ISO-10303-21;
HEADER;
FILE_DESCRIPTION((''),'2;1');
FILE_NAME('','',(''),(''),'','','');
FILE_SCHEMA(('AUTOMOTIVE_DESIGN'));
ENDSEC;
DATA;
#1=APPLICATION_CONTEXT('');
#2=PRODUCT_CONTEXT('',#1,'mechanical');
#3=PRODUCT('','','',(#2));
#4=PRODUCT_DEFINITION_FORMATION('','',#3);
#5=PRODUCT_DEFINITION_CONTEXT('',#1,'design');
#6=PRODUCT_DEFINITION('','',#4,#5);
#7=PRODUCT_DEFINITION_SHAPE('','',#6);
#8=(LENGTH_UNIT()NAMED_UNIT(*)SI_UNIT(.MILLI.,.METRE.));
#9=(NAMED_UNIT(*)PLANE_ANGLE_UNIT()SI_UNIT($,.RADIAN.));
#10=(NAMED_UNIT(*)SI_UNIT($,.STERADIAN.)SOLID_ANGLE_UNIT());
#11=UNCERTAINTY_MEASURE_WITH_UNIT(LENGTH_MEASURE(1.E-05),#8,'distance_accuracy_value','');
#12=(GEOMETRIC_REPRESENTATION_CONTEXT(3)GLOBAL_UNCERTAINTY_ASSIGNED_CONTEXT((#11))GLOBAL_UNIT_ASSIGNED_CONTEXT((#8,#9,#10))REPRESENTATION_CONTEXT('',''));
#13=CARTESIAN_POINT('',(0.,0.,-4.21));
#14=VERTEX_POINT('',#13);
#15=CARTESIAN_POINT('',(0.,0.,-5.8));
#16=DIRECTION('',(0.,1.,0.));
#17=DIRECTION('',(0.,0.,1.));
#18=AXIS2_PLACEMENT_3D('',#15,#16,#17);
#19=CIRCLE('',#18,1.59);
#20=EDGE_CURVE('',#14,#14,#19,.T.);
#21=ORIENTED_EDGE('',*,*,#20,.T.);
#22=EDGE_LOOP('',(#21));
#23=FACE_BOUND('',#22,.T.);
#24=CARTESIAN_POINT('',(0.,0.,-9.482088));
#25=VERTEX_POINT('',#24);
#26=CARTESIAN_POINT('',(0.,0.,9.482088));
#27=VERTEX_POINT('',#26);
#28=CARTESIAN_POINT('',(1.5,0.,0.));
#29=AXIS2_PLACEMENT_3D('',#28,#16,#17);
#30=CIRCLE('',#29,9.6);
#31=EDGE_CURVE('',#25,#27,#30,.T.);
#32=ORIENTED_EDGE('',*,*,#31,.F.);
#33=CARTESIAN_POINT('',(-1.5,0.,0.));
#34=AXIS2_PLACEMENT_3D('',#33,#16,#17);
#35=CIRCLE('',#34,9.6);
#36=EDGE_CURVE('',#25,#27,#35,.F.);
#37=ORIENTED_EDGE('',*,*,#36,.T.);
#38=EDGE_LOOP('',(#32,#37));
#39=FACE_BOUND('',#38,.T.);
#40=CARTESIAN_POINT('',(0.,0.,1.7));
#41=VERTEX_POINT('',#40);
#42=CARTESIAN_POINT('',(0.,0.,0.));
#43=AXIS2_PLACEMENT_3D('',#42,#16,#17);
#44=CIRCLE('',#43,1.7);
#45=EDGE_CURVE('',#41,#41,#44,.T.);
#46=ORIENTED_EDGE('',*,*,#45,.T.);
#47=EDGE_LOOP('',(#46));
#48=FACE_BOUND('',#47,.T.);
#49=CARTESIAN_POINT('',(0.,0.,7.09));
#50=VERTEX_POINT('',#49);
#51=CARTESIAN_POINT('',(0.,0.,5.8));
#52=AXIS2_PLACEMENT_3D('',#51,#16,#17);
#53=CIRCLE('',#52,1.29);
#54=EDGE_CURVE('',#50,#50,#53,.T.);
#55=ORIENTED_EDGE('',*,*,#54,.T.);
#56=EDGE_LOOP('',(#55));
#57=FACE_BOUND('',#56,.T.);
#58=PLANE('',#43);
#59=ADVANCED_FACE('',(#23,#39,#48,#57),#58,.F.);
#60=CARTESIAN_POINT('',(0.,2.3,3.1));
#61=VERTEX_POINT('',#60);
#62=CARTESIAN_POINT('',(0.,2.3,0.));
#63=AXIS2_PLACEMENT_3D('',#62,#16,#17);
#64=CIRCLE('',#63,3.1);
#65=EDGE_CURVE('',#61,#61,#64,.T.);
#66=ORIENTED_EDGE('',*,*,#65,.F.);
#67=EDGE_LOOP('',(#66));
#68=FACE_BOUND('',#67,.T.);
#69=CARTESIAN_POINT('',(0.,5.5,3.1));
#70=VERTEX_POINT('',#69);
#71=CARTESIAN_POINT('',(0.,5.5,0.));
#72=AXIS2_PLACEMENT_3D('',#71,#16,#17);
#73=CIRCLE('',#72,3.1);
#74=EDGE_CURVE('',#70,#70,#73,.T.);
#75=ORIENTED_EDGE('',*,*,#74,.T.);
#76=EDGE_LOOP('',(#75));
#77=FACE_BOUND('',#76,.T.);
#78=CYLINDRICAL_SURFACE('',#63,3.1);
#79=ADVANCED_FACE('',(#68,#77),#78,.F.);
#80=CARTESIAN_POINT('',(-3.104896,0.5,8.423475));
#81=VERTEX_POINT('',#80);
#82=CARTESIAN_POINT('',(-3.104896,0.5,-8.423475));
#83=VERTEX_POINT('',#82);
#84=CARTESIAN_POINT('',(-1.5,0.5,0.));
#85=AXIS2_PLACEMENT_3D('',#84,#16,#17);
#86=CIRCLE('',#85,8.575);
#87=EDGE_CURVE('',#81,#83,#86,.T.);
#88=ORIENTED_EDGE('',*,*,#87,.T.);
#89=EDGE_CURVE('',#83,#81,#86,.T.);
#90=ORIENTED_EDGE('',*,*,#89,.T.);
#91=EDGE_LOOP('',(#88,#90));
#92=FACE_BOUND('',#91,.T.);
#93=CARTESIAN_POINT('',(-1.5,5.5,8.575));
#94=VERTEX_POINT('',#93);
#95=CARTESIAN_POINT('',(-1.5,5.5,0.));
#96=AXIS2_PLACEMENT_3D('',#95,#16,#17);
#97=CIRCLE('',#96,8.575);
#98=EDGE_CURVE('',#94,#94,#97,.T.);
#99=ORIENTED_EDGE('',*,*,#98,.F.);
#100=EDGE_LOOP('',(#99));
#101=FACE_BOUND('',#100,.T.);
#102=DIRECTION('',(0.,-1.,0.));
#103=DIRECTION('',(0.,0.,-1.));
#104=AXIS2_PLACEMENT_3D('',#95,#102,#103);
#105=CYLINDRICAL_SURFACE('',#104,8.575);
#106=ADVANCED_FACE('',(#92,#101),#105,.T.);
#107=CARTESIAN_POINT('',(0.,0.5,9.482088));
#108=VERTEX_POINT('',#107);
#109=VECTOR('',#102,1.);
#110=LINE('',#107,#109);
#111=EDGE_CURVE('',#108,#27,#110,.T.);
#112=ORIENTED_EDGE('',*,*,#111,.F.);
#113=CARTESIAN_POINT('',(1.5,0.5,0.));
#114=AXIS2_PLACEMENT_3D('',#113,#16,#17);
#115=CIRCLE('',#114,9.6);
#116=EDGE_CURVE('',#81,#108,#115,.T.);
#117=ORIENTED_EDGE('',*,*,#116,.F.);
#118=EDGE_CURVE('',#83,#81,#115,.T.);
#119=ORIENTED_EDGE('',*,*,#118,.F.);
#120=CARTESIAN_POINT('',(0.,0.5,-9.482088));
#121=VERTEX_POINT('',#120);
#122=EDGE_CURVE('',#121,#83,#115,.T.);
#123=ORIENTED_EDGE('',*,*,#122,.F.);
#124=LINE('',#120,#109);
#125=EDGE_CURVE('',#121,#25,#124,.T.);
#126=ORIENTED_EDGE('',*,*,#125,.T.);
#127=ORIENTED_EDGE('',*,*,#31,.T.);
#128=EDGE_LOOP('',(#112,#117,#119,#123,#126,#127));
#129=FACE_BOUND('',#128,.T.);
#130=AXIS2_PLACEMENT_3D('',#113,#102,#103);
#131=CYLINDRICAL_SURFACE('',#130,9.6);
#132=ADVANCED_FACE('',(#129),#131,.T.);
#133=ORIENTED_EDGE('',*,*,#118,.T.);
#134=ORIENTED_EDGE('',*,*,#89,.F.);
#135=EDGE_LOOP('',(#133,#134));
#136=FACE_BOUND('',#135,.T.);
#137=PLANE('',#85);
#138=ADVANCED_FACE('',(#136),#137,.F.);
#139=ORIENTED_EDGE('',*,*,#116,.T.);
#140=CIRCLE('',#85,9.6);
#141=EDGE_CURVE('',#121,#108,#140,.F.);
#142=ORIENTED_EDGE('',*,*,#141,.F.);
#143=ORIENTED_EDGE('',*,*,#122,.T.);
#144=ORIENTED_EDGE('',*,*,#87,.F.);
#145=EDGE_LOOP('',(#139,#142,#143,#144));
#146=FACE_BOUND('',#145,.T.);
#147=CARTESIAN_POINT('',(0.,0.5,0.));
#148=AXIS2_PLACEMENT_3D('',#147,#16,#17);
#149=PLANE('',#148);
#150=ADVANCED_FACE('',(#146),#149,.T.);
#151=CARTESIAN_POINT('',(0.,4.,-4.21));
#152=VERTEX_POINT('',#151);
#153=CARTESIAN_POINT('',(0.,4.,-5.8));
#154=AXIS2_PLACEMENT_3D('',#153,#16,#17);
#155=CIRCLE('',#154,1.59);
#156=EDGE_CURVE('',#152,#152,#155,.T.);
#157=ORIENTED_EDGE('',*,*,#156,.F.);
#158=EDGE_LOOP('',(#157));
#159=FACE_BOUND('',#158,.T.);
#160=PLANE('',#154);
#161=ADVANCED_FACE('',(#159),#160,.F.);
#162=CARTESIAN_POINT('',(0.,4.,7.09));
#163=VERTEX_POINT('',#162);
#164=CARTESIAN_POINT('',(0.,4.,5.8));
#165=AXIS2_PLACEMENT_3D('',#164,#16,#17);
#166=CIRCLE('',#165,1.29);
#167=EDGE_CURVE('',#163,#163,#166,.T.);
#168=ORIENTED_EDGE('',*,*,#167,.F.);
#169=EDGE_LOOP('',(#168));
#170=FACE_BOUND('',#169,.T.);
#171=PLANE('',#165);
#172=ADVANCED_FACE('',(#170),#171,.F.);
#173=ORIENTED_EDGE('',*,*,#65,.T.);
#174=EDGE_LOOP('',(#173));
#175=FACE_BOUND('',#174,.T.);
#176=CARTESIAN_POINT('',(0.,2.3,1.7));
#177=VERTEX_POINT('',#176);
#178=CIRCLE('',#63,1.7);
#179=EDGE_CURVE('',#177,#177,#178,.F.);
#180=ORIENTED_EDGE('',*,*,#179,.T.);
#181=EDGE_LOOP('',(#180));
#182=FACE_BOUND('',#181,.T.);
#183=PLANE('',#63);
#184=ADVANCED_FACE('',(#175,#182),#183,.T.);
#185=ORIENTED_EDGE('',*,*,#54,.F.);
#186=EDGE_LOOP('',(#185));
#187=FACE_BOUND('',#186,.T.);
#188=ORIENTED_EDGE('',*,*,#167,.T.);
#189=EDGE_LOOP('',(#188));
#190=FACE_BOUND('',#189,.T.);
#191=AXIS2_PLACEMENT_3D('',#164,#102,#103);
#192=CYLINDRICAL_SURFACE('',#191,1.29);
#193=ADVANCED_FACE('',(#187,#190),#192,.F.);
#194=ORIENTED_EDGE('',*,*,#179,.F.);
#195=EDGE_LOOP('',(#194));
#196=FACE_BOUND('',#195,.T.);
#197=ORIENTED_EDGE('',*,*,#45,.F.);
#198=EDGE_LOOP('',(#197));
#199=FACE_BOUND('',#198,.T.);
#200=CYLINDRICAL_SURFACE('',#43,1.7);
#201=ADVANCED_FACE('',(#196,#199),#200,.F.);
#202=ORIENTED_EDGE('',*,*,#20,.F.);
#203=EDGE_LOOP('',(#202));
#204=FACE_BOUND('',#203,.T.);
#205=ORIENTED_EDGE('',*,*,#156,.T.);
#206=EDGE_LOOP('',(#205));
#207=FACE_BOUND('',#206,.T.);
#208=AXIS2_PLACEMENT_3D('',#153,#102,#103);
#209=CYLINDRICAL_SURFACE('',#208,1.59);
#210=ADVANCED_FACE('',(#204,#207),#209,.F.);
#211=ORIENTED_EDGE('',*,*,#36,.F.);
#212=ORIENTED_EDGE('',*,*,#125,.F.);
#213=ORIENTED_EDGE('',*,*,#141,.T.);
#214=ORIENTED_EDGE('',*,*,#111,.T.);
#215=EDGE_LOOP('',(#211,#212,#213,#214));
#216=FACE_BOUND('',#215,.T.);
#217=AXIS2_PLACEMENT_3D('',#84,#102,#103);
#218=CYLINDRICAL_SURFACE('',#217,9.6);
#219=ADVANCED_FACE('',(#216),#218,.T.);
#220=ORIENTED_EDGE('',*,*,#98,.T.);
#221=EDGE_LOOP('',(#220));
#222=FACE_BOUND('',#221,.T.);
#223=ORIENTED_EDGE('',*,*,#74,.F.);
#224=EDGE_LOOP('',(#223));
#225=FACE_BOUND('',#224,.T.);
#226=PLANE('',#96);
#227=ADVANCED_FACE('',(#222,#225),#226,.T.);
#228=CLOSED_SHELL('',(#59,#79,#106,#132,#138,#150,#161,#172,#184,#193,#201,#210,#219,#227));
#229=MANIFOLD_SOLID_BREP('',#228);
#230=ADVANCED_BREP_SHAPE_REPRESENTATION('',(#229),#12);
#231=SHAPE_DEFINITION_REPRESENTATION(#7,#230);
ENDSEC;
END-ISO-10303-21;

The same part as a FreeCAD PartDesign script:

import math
import FreeCAD as App
import Part
import Sketcher

V = App.Vector
Q = App.Units.Quantity

doc = App.newDocument("Part")
body = doc.addObject("PartDesign::Body", "Body")

# Sketch on XZ plane
sketch1 = doc.addObject("Sketcher::SketchObject", "Sketch")
body.addObject(sketch1)
sketch1.AttachmentSupport = (doc.XZ_Plane, [""])
sketch1.MapMode = "FlatFace"
sketch1.addGeometry(Part.ArcOfCircle(Part.Circle(V(-2, 0, 0), V(0, 0, 1), 10), math.radians(-81), math.radians(0)), False)
sketch1.addGeometry(Part.ArcOfCircle(Part.Circle(V(2, 0, 0), V(0, 0, 1), 10), math.radians(99), math.radians(261)), False)
sketch1.addGeometry(Part.ArcOfCircle(Part.Circle(V(-2, 0, 0), V(0, 0, 1), 10), math.radians(0), math.radians(81)), False)
sketch1.addConstraint(Sketcher.Constraint("Coincident", 0, 1, 1, 2))
sketch1.addConstraint(Sketcher.Constraint("Coincident", 1, 1, 2, 2))
sketch1.addConstraint(Sketcher.Constraint("Tangent", 2, 1, 0, 2))
sketch1.addConstraint(Sketcher.Constraint("Equal", 0, 1))
sketch1.addConstraint(Sketcher.Constraint("Equal", 1, 2))
sketch1.addConstraint(Sketcher.Constraint("Symmetric", 0, 3, 1, 3, -1, 1))
sketch1.addConstraint(Sketcher.Constraint("PointOnObject", 0, 3, -1))
sketch1.addConstraint(Sketcher.Constraint("PointOnObject", 2, 1, -1))
sketch1.addConstraint(Sketcher.Constraint("Radius", 0, Q("9.6 mm")))
sketch1.addConstraint(Sketcher.Constraint("DistanceX", 0, 3, 1, 3, Q("3 mm")))
pad1 = doc.addObject("PartDesign::Pad", "Pad")
body.addObject(pad1)
pad1.Profile = sketch1
pad1.Length = 0.5
pad1.Reversed = True

# Sketch on XZ plane
sketch2 = doc.addObject("Sketcher::SketchObject", "Sketch001")
body.addObject(sketch2)
sketch2.AttachmentSupport = (doc.XZ_Plane, [""])
sketch2.MapMode = "FlatFace"
sketch2.AttachmentOffset = App.Placement(V(0, 0, -0.5), App.Rotation())
sketch2.addGeometry(Part.Circle(V(-2, 0, 0), V(0, 0, 1), 9), False)
sketch2.addConstraint(Sketcher.Constraint("PointOnObject", 0, 3, -1))
sketch2.addConstraint(Sketcher.Constraint("Diameter", 0, Q("17.15 mm")))
sketch2.addConstraint(Sketcher.Constraint("DistanceX", 0, 3, -1, 1, Q("1.5 mm")))
pad2 = doc.addObject("PartDesign::Pad", "Pad001")
body.addObject(pad2)
pad2.Profile = sketch2
pad2.Length = 5
pad2.Reversed = True

# Sketch on XZ plane
sketch3 = doc.addObject("Sketcher::SketchObject", "Sketch002")
body.addObject(sketch3)
sketch3.AttachmentSupport = (doc.XZ_Plane, [""])
sketch3.MapMode = "FlatFace"
sketch3.addGeometry(Part.Circle(V(0, -5.8, 0), V(0, 0, 1), 1.6), False)
sketch3.addGeometry(Part.Circle(V(0, 5.8, 0), V(0, 0, 1), 1.3), False)
sketch3.addConstraint(Sketcher.Constraint("Symmetric", 0, 3, 1, 3, -1, 1))
sketch3.addConstraint(Sketcher.Constraint("PointOnObject", 0, 3, -2))
sketch3.addConstraint(Sketcher.Constraint("Diameter", 0, Q("3.18 mm")))
sketch3.addConstraint(Sketcher.Constraint("Diameter", 1, Q("2.58 mm")))
sketch3.addConstraint(Sketcher.Constraint("DistanceY", 0, 3, -1, 1, Q("5.8 mm")))
pocket1 = doc.addObject("PartDesign::Pocket", "Pocket")
body.addObject(pocket1)
pocket1.Profile = sketch3
pocket1.Length = 4

# Sketch on XZ plane
sketch4 = doc.addObject("Sketcher::SketchObject", "Sketch003")
body.addObject(sketch4)
sketch4.AttachmentSupport = (doc.XZ_Plane, [""])
sketch4.MapMode = "FlatFace"
sketch4.AttachmentOffset = App.Placement(V(0, 0, -5.5), App.Rotation())
sketch4.addGeometry(Part.Circle(V(0, 0, 0), V(0, 0, 1), 1.7), False)
sketch4.addConstraint(Sketcher.Constraint("Coincident", 0, 3, -1, 1))
sketch4.addConstraint(Sketcher.Constraint("Diameter", 0, Q("3.4 mm")))
pocket2 = doc.addObject("PartDesign::Pocket", "Pocket001")
body.addObject(pocket2)
pocket2.Profile = sketch4
pocket2.Type = "ThroughAll"
pocket2.Reversed = True

# Sketch on XZ plane
sketch5 = doc.addObject("Sketcher::SketchObject", "Sketch004")
body.addObject(sketch5)
sketch5.AttachmentSupport = (doc.XZ_Plane, [""])
sketch5.MapMode = "FlatFace"
sketch5.AttachmentOffset = App.Placement(V(0, 0, -5.5), App.Rotation())
sketch5.addGeometry(Part.Circle(V(0, 0, 0), V(0, 0, 1), 3.1), False)
sketch5.addConstraint(Sketcher.Constraint("Coincident", 0, 3, -1, 1))
sketch5.addConstraint(Sketcher.Constraint("Diameter", 0, Q("6.2 mm")))
pocket3 = doc.addObject("PartDesign::Pocket", "Pocket002")
body.addObject(pocket3)
pocket3.Profile = sketch5
pocket3.Length = 3.2
pocket3.Reversed = True

doc.recompute()
